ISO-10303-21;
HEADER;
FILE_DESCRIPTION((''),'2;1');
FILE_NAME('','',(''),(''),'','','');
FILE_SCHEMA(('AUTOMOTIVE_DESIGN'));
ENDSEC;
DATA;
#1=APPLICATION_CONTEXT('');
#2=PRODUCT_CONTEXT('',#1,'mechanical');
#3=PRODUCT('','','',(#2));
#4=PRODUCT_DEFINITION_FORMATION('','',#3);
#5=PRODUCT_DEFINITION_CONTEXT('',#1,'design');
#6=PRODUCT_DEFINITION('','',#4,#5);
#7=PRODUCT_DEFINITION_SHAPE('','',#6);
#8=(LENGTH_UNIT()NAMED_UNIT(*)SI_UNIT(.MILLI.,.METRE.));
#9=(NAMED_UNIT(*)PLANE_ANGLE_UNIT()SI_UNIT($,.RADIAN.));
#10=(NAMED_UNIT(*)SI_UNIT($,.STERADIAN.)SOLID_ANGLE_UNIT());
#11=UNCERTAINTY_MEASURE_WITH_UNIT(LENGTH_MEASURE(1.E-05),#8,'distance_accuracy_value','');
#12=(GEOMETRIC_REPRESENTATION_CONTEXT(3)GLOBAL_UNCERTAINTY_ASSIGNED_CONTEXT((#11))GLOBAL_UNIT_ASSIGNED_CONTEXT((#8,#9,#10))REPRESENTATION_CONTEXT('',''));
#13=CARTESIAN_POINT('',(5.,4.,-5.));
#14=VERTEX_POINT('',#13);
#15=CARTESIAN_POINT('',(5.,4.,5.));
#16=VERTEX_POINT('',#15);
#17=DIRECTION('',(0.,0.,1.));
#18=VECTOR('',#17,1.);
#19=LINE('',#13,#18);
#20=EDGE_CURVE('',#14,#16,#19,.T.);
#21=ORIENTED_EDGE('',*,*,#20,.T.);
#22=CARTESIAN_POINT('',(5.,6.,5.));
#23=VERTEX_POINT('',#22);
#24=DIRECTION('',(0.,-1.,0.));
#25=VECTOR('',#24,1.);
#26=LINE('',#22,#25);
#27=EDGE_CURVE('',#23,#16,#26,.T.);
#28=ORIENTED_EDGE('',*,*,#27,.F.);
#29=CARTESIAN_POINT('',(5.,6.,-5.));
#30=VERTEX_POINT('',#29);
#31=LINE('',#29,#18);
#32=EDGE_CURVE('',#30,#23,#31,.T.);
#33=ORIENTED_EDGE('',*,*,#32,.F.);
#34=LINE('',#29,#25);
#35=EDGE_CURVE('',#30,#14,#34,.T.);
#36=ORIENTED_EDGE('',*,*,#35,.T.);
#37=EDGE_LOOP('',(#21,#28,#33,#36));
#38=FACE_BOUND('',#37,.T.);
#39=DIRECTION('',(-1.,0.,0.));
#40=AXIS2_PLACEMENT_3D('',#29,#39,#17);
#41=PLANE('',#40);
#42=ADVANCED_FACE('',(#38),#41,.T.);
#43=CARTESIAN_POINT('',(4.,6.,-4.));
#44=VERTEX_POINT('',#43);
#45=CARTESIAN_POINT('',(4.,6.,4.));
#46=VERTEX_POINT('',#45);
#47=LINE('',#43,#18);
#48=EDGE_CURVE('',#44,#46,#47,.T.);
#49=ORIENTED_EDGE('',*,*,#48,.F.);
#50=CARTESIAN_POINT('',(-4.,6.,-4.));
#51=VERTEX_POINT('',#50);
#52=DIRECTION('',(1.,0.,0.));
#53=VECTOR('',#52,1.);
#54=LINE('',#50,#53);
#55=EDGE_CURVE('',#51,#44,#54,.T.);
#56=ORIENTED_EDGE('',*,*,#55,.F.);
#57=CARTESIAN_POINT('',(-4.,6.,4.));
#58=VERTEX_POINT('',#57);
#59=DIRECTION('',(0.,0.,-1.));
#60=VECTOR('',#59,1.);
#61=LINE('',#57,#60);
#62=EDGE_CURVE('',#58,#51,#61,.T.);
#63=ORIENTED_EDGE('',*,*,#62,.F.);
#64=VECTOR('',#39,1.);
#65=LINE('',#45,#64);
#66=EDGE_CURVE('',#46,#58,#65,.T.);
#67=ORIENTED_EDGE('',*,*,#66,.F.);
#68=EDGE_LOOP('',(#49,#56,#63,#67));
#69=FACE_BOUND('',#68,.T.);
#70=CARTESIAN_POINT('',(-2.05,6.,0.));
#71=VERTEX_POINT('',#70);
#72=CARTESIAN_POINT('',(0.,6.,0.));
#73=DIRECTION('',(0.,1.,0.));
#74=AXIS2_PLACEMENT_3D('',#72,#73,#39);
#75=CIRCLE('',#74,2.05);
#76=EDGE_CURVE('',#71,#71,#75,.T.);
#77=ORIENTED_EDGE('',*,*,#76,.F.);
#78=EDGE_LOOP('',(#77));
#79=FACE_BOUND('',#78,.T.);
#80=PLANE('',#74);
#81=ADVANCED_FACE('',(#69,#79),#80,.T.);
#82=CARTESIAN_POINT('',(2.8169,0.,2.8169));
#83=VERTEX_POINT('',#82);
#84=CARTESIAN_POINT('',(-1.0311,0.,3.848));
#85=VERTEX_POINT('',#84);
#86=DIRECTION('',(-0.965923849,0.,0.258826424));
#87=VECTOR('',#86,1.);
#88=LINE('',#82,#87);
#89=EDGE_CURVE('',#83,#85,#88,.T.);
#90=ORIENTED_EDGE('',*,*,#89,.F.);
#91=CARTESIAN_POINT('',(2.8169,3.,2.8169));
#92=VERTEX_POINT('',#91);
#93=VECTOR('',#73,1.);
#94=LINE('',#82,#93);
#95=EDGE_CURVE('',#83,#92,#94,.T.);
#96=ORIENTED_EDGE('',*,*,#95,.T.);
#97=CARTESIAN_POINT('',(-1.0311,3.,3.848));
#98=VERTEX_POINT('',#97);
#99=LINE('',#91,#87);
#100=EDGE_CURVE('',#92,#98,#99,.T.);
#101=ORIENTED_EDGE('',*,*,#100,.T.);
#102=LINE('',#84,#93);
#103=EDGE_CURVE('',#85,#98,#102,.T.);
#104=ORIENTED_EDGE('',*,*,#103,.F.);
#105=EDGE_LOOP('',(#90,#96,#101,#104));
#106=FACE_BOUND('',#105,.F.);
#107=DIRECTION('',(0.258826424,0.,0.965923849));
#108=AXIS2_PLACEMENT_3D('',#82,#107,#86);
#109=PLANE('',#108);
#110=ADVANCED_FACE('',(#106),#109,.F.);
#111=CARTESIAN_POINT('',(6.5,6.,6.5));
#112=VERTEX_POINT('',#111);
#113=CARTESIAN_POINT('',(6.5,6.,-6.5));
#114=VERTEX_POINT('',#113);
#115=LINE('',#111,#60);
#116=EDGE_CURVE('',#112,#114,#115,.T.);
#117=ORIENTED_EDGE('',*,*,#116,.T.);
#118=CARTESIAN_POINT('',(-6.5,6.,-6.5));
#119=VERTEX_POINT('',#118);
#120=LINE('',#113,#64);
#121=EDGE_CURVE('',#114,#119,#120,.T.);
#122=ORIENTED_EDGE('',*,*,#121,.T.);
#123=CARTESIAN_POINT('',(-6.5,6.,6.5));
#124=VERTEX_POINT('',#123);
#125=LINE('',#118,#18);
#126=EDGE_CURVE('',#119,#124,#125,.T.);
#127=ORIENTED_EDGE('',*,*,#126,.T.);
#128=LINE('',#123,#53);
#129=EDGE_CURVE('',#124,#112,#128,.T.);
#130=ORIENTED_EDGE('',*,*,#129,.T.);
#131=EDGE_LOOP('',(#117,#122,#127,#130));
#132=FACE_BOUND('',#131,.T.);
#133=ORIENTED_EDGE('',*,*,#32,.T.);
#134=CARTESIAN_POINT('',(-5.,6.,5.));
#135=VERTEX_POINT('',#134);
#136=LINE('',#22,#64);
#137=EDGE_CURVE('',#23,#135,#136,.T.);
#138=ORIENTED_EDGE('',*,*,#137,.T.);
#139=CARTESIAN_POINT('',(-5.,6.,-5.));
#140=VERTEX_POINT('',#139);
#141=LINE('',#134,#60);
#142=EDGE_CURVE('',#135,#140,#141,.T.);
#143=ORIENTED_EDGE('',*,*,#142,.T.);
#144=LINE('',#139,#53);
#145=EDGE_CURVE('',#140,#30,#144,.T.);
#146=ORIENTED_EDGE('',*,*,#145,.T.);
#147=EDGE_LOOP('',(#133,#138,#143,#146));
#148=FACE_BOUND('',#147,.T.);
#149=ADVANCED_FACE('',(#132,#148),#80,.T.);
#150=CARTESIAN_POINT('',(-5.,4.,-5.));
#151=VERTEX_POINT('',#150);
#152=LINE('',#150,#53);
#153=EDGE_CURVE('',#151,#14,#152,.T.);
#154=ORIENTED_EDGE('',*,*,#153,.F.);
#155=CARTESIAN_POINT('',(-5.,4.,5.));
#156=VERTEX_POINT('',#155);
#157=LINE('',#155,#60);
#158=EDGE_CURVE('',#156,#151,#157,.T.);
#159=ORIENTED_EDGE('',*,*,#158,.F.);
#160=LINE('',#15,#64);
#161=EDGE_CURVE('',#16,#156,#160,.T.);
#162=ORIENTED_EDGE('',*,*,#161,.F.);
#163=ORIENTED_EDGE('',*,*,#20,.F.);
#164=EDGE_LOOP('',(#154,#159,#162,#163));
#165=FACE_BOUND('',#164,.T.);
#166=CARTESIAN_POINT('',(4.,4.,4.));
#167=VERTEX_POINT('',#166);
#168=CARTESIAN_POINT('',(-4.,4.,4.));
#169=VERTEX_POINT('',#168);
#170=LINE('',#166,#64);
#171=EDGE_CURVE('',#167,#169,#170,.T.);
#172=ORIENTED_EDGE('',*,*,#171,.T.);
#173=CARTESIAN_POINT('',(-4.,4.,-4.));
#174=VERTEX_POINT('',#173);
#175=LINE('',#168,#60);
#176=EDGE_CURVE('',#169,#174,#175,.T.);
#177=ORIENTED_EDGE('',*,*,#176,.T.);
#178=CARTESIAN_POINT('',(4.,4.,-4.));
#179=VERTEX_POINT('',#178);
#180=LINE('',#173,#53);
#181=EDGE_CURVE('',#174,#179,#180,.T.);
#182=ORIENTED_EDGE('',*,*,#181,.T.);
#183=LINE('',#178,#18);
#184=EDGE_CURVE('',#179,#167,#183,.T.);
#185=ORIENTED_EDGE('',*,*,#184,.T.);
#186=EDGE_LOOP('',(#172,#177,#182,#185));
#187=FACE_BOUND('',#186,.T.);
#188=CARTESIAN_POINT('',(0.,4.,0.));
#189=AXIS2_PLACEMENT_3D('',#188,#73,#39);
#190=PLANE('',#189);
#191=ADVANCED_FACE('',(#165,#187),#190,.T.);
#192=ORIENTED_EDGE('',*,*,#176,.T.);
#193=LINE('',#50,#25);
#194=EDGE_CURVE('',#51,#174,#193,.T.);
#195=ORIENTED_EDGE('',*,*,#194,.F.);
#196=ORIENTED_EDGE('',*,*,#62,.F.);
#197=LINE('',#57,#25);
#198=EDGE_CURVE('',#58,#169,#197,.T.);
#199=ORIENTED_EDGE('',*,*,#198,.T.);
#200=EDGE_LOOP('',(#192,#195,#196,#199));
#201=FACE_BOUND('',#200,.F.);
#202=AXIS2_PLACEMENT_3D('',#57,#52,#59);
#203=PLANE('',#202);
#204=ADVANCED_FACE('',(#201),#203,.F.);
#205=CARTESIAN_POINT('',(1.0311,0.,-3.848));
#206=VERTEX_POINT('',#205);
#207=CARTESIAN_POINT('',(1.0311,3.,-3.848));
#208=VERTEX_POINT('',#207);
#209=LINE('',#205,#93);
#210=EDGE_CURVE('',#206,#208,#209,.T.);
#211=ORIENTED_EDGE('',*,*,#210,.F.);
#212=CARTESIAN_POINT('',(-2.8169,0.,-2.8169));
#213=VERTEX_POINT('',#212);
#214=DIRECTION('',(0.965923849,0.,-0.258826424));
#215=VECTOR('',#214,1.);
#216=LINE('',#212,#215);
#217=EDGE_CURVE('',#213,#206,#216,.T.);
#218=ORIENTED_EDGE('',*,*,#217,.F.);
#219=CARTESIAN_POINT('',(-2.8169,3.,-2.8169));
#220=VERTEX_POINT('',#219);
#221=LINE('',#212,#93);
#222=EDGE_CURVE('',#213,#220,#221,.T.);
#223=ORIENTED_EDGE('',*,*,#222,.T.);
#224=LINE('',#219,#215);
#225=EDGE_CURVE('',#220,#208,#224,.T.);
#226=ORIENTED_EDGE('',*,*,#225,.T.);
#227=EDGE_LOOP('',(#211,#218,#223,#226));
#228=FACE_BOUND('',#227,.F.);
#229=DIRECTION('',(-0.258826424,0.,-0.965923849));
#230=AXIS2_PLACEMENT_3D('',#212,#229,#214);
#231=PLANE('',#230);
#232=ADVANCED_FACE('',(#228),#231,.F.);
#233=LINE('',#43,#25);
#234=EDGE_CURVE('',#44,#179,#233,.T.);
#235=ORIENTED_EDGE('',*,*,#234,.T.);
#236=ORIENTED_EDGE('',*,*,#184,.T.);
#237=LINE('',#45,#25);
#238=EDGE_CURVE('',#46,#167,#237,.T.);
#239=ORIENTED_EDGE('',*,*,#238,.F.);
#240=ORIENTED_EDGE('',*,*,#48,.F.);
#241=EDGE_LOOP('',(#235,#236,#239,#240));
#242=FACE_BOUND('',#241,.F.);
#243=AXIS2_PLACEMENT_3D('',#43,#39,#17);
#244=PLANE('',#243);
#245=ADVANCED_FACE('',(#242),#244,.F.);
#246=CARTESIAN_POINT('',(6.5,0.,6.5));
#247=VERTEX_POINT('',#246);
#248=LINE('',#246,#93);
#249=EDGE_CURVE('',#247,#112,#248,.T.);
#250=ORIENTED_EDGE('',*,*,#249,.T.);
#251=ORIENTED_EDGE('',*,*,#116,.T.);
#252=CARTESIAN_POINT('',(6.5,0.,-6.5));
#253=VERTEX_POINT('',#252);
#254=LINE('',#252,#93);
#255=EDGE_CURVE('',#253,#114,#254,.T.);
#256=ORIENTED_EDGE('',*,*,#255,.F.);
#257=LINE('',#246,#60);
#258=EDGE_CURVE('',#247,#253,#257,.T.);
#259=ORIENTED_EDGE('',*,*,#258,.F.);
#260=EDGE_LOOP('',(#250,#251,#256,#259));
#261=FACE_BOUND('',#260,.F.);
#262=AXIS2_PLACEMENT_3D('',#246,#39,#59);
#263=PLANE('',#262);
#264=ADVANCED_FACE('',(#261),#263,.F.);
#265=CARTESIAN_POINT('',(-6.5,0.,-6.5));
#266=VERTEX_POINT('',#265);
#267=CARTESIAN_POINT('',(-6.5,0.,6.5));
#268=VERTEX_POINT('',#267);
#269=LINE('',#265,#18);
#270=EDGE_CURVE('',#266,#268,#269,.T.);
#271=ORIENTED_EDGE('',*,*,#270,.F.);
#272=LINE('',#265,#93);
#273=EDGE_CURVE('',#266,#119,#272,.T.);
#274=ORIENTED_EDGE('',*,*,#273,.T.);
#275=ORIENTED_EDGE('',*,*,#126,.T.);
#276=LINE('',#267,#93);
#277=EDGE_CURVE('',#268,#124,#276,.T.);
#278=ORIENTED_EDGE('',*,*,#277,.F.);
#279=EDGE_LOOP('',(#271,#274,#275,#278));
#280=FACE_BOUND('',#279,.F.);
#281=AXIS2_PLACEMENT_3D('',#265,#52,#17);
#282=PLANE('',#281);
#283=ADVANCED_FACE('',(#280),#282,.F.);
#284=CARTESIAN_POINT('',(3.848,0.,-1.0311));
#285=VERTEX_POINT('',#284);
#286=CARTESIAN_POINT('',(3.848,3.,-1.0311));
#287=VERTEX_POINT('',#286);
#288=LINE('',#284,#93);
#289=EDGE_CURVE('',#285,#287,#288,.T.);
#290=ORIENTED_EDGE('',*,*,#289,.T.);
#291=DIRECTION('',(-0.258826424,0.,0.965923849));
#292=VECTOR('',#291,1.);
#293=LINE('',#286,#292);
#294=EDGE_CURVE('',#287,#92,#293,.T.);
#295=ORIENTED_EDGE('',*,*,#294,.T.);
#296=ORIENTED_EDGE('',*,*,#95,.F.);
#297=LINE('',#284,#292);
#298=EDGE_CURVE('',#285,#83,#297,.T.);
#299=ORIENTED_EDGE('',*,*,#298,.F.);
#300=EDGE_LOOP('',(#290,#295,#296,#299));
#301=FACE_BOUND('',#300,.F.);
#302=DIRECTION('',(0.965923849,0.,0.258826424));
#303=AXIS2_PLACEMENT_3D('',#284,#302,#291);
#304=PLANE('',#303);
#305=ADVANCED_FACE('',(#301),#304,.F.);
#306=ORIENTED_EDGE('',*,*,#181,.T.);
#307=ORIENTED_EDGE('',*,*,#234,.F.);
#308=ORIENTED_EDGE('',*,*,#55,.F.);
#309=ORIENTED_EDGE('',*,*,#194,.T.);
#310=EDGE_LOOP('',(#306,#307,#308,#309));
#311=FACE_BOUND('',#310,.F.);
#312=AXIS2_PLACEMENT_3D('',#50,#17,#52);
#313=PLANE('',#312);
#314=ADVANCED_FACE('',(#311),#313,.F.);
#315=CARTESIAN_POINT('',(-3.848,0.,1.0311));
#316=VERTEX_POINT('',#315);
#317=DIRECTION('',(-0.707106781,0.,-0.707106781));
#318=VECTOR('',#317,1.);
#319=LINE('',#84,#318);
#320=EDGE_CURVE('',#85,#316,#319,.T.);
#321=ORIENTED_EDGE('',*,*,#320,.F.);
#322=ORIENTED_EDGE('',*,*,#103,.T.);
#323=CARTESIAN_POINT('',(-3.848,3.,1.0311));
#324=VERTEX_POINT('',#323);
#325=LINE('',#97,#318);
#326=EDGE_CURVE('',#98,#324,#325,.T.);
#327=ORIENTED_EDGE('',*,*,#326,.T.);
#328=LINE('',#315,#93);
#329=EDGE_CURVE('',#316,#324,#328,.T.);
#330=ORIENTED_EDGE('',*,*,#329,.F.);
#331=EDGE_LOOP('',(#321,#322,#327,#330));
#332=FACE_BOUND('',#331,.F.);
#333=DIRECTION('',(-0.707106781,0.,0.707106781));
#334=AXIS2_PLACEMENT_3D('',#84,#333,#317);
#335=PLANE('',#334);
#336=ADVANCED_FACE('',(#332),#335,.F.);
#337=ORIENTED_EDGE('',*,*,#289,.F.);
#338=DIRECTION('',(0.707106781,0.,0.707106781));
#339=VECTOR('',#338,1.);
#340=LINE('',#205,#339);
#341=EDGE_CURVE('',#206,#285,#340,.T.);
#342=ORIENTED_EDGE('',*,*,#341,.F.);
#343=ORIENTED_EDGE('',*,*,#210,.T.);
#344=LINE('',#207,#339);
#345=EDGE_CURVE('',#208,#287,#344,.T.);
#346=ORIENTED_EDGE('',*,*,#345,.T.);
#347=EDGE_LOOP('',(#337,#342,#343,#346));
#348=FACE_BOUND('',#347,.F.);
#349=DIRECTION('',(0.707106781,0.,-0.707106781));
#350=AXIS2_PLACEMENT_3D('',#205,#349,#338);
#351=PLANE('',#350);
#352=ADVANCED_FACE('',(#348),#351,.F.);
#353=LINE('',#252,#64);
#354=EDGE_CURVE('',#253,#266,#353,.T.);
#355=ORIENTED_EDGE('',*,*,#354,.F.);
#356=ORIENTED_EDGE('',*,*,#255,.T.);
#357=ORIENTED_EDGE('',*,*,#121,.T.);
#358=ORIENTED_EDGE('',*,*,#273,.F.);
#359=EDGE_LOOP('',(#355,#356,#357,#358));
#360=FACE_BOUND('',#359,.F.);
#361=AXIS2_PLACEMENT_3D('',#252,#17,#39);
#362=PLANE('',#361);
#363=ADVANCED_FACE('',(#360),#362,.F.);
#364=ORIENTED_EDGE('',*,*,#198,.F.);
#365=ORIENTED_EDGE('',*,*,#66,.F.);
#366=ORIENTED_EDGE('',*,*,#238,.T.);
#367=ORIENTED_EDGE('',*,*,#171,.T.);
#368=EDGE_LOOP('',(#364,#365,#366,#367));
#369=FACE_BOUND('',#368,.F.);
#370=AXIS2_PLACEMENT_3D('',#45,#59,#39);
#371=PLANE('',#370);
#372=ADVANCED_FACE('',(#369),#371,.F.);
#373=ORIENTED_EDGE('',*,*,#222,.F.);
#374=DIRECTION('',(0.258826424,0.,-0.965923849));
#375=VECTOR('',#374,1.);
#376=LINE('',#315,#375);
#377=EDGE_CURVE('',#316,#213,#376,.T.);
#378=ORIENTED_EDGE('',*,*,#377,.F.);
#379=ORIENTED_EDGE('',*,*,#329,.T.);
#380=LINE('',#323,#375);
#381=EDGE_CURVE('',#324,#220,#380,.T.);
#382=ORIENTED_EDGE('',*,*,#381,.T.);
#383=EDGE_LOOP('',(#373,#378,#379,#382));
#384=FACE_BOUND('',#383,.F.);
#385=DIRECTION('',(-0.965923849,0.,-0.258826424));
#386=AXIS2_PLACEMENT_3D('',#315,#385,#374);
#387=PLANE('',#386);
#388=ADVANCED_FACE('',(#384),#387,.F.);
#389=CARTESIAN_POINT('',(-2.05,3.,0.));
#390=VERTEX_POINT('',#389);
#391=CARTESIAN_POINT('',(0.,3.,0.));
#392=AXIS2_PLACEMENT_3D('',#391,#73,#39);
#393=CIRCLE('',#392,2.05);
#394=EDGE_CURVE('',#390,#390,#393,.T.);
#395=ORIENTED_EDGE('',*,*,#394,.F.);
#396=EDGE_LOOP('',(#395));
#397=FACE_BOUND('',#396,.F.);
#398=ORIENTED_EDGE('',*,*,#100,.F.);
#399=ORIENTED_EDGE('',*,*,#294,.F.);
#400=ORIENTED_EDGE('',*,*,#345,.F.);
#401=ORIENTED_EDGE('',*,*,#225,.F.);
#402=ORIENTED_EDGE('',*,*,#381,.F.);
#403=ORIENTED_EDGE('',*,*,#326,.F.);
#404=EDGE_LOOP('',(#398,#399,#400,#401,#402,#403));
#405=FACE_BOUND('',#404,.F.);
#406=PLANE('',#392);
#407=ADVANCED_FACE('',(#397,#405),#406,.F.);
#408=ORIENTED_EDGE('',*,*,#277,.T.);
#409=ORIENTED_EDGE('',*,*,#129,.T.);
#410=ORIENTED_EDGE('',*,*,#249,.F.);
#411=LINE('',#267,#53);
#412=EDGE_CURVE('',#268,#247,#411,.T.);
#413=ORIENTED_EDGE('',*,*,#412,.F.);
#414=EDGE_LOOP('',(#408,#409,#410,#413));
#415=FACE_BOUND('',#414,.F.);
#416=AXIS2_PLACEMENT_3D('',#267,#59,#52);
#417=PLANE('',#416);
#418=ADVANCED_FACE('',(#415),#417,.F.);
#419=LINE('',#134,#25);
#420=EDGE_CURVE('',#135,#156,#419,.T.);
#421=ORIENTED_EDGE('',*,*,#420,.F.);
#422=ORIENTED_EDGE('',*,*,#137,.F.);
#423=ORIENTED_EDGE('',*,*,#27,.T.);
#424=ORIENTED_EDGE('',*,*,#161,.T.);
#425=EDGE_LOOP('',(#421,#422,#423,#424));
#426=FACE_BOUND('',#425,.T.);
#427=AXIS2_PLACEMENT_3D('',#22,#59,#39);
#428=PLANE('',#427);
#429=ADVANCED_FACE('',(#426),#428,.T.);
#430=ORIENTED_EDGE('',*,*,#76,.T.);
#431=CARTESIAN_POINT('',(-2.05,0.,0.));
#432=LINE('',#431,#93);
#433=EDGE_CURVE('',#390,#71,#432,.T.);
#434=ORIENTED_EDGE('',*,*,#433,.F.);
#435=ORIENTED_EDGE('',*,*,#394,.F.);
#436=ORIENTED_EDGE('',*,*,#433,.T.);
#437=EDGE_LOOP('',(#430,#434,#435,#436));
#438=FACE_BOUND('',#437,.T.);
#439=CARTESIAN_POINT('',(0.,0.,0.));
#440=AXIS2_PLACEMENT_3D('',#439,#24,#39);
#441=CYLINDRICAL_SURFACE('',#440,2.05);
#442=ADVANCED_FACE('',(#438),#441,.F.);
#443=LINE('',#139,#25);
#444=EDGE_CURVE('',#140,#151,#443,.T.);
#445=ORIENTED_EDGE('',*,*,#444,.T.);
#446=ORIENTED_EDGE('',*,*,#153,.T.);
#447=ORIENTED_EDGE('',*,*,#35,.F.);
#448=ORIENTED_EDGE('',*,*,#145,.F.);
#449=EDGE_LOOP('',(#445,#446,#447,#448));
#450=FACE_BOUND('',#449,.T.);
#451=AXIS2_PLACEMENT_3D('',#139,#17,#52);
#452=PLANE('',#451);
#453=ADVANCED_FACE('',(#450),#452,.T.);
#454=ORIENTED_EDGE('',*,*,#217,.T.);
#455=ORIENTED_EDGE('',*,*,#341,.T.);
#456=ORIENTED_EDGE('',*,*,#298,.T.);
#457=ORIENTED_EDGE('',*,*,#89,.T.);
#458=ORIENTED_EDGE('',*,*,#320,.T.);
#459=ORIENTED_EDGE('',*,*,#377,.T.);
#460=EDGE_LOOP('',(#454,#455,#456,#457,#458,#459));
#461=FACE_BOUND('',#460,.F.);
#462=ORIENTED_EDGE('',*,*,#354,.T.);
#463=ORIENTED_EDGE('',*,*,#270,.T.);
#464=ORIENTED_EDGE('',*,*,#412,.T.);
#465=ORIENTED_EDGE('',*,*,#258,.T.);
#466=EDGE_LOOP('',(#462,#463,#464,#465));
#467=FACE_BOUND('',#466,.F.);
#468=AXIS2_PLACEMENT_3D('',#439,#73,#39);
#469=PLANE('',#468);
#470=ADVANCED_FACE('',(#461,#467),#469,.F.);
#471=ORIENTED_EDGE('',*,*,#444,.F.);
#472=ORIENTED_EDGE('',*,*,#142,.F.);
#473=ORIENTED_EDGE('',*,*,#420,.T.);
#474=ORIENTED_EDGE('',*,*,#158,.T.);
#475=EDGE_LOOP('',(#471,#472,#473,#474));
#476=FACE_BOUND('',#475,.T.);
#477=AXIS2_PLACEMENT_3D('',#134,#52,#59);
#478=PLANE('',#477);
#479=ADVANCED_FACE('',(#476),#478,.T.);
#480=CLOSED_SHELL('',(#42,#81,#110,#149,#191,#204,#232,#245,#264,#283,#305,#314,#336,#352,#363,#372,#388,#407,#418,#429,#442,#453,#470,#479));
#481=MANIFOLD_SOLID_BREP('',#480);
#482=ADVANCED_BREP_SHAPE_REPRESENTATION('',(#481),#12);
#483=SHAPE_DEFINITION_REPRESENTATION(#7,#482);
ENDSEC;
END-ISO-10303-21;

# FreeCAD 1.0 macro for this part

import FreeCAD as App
import Part
import Sketcher
from FreeCAD import Vector
Q = App.Units.Quantity


def add_polygon(sketch, points):
    """Adds a closed chain of lines whose ends are joined by coincident constraints."""
    first, n = sketch.GeometryCount, len(points)
    for a, b in zip(points, points[1:] + points[:1]):
        sketch.addGeometry(Part.LineSegment(App.Vector(*a, 0), App.Vector(*b, 0)), False)
    for i in range(n):
        sketch.addConstraint(Sketcher.Constraint("Coincident", first + i, 2, first + (i + 1) % n, 1))

doc = App.newDocument("Part")
body = doc.addObject("PartDesign::Body", "Body")

sketch1 = body.newObject("Sketcher::SketchObject", "Sketch")
sketch1.AttachmentSupport = (doc.getObject("XZ_Plane"), [""])
sketch1.MapMode = "FlatFace"
add_polygon(sketch1, [(6, 6), (6, -6), (-6, -6), (-6, 6)])
sketch1.addConstraint(Sketcher.Constraint("Vertical", 0))
sketch1.addConstraint(Sketcher.Constraint("Horizontal", 1))
sketch1.addConstraint(Sketcher.Constraint("Vertical", 2))
sketch1.addConstraint(Sketcher.Constraint("Horizontal", 3))
sketch1.addConstraint(Sketcher.Constraint("Symmetric", 0, 2, 2, 2, -1, 1))
sketch1.addConstraint(Sketcher.Constraint("Equal", 3, 0))
sketch1.addConstraint(Sketcher.Constraint("DistanceX", 1, 2, 1, 1, 13.0))
pad1 = body.newObject("PartDesign::Pad", "Pad")
pad1.Profile = sketch1
pad1.Length = 6
pad1.Reversed = True

sketch2 = body.newObject("Sketcher::SketchObject", "Sketch001")
sketch2.AttachmentSupport = (doc.getObject("XZ_Plane"), [""])
sketch2.MapMode = "FlatFace"
sketch2.AttachmentOffset = App.Placement(Vector(0, 0, -6), App.Rotation())
add_polygon(sketch2, [(5, -5), (-5, -5), (-5, 5), (5, 5)])
add_polygon(sketch2, [(-4, 4), (-4, -4), (4, -4), (4, 4)])
sketch2.addConstraint(Sketcher.Constraint("Horizontal", 0))
sketch2.addConstraint(Sketcher.Constraint("Vertical", 1))
sketch2.addConstraint(Sketcher.Constraint("Horizontal", 2))
sketch2.addConstraint(Sketcher.Constraint("Vertical", 3))
sketch2.addConstraint(Sketcher.Constraint("Vertical", 4))
sketch2.addConstraint(Sketcher.Constraint("Horizontal", 5))
sketch2.addConstraint(Sketcher.Constraint("Vertical", 6))
sketch2.addConstraint(Sketcher.Constraint("Horizontal", 7))
sketch2.addConstraint(Sketcher.Constraint("Symmetric", 0, 2, 2, 2, -1, 1))
sketch2.addConstraint(Sketcher.Constraint("Symmetric", 4, 2, 6, 2, -1, 1))
sketch2.addConstraint(Sketcher.Constraint("Equal", 2, 1))
sketch2.addConstraint(Sketcher.Constraint("Equal", 7, 4))
sketch2.addConstraint(Sketcher.Constraint("DistanceX", 0, 2, 0, 1, 10.0))
sketch2.addConstraint(Sketcher.Constraint("DistanceX", 5, 1, 5, 2, 8.0))
pocket1 = body.newObject("PartDesign::Pocket", "Pocket")
pocket1.Profile = sketch2
pocket1.Length = 2
pocket1.Reversed = True

sketch3 = body.newObject("Sketcher::SketchObject", "Sketch002")
sketch3.AttachmentSupport = (doc.getObject("XZ_Plane"), [""])
sketch3.MapMode = "FlatFace"
add_polygon(sketch3, [(-3.8, 1), (-1, 3.8), (2.8, 2.8), (3.8, -1), (1, -3.8), (-2.8, -2.8)])
sketch3.addGeometry(Part.Circle(Vector(0, 0, 0), Vector(0, 0, 1), 2), False)
sketch3.addConstraint(Sketcher.Constraint("Coincident", 6, 3, -1, 1))
sketch3.addConstraint(Sketcher.Constraint("Symmetric", 0, 2, 3, 2, -1, 1))
sketch3.addConstraint(Sketcher.Constraint("Symmetric", 1, 2, 4, 2, -1, 1))
sketch3.addConstraint(Sketcher.Constraint("Symmetric", 2, 2, 5, 2, -1, 1))
sketch3.addConstraint(Sketcher.Constraint("Equal", 0, 1))
sketch3.addConstraint(Sketcher.Constraint("Equal", 1, 2))
sketch3.addConstraint(Sketcher.Constraint("Diameter", 6, 4.1))
sketch3.addConstraint(Sketcher.Constraint("Angle", 0, Q("45 deg")))
sketch3.addConstraint(Sketcher.Constraint("Angle", 1, Q("-15.0004 deg")))
sketch3.addConstraint(Sketcher.Constraint("Angle", 2, Q("-74.9996 deg")))
sketch3.addConstraint(Sketcher.Constraint("DistanceX", 0, 2, -1, 1, 1.031))
pocket2 = body.newObject("PartDesign::Pocket", "Pocket001")
pocket2.Profile = sketch3
pocket2.Length = 3

sketch4 = body.newObject("Sketcher::SketchObject", "Sketch003")
sketch4.AttachmentSupport = (doc.getObject("XZ_Plane"), [""])
sketch4.MapMode = "FlatFace"
sketch4.addGeometry(Part.Circle(Vector(0, 0, 0), Vector(0, 0, 1), 2), False)
sketch4.addConstraint(Sketcher.Constraint("Coincident", 0, 3, -1, 1))
sketch4.addConstraint(Sketcher.Constraint("Diameter", 0, 4.1))
pocket3 = body.newObject("PartDesign::Pocket", "Pocket002")
pocket3.Profile = sketch4
pocket3.Length = 6

doc.recompute()
